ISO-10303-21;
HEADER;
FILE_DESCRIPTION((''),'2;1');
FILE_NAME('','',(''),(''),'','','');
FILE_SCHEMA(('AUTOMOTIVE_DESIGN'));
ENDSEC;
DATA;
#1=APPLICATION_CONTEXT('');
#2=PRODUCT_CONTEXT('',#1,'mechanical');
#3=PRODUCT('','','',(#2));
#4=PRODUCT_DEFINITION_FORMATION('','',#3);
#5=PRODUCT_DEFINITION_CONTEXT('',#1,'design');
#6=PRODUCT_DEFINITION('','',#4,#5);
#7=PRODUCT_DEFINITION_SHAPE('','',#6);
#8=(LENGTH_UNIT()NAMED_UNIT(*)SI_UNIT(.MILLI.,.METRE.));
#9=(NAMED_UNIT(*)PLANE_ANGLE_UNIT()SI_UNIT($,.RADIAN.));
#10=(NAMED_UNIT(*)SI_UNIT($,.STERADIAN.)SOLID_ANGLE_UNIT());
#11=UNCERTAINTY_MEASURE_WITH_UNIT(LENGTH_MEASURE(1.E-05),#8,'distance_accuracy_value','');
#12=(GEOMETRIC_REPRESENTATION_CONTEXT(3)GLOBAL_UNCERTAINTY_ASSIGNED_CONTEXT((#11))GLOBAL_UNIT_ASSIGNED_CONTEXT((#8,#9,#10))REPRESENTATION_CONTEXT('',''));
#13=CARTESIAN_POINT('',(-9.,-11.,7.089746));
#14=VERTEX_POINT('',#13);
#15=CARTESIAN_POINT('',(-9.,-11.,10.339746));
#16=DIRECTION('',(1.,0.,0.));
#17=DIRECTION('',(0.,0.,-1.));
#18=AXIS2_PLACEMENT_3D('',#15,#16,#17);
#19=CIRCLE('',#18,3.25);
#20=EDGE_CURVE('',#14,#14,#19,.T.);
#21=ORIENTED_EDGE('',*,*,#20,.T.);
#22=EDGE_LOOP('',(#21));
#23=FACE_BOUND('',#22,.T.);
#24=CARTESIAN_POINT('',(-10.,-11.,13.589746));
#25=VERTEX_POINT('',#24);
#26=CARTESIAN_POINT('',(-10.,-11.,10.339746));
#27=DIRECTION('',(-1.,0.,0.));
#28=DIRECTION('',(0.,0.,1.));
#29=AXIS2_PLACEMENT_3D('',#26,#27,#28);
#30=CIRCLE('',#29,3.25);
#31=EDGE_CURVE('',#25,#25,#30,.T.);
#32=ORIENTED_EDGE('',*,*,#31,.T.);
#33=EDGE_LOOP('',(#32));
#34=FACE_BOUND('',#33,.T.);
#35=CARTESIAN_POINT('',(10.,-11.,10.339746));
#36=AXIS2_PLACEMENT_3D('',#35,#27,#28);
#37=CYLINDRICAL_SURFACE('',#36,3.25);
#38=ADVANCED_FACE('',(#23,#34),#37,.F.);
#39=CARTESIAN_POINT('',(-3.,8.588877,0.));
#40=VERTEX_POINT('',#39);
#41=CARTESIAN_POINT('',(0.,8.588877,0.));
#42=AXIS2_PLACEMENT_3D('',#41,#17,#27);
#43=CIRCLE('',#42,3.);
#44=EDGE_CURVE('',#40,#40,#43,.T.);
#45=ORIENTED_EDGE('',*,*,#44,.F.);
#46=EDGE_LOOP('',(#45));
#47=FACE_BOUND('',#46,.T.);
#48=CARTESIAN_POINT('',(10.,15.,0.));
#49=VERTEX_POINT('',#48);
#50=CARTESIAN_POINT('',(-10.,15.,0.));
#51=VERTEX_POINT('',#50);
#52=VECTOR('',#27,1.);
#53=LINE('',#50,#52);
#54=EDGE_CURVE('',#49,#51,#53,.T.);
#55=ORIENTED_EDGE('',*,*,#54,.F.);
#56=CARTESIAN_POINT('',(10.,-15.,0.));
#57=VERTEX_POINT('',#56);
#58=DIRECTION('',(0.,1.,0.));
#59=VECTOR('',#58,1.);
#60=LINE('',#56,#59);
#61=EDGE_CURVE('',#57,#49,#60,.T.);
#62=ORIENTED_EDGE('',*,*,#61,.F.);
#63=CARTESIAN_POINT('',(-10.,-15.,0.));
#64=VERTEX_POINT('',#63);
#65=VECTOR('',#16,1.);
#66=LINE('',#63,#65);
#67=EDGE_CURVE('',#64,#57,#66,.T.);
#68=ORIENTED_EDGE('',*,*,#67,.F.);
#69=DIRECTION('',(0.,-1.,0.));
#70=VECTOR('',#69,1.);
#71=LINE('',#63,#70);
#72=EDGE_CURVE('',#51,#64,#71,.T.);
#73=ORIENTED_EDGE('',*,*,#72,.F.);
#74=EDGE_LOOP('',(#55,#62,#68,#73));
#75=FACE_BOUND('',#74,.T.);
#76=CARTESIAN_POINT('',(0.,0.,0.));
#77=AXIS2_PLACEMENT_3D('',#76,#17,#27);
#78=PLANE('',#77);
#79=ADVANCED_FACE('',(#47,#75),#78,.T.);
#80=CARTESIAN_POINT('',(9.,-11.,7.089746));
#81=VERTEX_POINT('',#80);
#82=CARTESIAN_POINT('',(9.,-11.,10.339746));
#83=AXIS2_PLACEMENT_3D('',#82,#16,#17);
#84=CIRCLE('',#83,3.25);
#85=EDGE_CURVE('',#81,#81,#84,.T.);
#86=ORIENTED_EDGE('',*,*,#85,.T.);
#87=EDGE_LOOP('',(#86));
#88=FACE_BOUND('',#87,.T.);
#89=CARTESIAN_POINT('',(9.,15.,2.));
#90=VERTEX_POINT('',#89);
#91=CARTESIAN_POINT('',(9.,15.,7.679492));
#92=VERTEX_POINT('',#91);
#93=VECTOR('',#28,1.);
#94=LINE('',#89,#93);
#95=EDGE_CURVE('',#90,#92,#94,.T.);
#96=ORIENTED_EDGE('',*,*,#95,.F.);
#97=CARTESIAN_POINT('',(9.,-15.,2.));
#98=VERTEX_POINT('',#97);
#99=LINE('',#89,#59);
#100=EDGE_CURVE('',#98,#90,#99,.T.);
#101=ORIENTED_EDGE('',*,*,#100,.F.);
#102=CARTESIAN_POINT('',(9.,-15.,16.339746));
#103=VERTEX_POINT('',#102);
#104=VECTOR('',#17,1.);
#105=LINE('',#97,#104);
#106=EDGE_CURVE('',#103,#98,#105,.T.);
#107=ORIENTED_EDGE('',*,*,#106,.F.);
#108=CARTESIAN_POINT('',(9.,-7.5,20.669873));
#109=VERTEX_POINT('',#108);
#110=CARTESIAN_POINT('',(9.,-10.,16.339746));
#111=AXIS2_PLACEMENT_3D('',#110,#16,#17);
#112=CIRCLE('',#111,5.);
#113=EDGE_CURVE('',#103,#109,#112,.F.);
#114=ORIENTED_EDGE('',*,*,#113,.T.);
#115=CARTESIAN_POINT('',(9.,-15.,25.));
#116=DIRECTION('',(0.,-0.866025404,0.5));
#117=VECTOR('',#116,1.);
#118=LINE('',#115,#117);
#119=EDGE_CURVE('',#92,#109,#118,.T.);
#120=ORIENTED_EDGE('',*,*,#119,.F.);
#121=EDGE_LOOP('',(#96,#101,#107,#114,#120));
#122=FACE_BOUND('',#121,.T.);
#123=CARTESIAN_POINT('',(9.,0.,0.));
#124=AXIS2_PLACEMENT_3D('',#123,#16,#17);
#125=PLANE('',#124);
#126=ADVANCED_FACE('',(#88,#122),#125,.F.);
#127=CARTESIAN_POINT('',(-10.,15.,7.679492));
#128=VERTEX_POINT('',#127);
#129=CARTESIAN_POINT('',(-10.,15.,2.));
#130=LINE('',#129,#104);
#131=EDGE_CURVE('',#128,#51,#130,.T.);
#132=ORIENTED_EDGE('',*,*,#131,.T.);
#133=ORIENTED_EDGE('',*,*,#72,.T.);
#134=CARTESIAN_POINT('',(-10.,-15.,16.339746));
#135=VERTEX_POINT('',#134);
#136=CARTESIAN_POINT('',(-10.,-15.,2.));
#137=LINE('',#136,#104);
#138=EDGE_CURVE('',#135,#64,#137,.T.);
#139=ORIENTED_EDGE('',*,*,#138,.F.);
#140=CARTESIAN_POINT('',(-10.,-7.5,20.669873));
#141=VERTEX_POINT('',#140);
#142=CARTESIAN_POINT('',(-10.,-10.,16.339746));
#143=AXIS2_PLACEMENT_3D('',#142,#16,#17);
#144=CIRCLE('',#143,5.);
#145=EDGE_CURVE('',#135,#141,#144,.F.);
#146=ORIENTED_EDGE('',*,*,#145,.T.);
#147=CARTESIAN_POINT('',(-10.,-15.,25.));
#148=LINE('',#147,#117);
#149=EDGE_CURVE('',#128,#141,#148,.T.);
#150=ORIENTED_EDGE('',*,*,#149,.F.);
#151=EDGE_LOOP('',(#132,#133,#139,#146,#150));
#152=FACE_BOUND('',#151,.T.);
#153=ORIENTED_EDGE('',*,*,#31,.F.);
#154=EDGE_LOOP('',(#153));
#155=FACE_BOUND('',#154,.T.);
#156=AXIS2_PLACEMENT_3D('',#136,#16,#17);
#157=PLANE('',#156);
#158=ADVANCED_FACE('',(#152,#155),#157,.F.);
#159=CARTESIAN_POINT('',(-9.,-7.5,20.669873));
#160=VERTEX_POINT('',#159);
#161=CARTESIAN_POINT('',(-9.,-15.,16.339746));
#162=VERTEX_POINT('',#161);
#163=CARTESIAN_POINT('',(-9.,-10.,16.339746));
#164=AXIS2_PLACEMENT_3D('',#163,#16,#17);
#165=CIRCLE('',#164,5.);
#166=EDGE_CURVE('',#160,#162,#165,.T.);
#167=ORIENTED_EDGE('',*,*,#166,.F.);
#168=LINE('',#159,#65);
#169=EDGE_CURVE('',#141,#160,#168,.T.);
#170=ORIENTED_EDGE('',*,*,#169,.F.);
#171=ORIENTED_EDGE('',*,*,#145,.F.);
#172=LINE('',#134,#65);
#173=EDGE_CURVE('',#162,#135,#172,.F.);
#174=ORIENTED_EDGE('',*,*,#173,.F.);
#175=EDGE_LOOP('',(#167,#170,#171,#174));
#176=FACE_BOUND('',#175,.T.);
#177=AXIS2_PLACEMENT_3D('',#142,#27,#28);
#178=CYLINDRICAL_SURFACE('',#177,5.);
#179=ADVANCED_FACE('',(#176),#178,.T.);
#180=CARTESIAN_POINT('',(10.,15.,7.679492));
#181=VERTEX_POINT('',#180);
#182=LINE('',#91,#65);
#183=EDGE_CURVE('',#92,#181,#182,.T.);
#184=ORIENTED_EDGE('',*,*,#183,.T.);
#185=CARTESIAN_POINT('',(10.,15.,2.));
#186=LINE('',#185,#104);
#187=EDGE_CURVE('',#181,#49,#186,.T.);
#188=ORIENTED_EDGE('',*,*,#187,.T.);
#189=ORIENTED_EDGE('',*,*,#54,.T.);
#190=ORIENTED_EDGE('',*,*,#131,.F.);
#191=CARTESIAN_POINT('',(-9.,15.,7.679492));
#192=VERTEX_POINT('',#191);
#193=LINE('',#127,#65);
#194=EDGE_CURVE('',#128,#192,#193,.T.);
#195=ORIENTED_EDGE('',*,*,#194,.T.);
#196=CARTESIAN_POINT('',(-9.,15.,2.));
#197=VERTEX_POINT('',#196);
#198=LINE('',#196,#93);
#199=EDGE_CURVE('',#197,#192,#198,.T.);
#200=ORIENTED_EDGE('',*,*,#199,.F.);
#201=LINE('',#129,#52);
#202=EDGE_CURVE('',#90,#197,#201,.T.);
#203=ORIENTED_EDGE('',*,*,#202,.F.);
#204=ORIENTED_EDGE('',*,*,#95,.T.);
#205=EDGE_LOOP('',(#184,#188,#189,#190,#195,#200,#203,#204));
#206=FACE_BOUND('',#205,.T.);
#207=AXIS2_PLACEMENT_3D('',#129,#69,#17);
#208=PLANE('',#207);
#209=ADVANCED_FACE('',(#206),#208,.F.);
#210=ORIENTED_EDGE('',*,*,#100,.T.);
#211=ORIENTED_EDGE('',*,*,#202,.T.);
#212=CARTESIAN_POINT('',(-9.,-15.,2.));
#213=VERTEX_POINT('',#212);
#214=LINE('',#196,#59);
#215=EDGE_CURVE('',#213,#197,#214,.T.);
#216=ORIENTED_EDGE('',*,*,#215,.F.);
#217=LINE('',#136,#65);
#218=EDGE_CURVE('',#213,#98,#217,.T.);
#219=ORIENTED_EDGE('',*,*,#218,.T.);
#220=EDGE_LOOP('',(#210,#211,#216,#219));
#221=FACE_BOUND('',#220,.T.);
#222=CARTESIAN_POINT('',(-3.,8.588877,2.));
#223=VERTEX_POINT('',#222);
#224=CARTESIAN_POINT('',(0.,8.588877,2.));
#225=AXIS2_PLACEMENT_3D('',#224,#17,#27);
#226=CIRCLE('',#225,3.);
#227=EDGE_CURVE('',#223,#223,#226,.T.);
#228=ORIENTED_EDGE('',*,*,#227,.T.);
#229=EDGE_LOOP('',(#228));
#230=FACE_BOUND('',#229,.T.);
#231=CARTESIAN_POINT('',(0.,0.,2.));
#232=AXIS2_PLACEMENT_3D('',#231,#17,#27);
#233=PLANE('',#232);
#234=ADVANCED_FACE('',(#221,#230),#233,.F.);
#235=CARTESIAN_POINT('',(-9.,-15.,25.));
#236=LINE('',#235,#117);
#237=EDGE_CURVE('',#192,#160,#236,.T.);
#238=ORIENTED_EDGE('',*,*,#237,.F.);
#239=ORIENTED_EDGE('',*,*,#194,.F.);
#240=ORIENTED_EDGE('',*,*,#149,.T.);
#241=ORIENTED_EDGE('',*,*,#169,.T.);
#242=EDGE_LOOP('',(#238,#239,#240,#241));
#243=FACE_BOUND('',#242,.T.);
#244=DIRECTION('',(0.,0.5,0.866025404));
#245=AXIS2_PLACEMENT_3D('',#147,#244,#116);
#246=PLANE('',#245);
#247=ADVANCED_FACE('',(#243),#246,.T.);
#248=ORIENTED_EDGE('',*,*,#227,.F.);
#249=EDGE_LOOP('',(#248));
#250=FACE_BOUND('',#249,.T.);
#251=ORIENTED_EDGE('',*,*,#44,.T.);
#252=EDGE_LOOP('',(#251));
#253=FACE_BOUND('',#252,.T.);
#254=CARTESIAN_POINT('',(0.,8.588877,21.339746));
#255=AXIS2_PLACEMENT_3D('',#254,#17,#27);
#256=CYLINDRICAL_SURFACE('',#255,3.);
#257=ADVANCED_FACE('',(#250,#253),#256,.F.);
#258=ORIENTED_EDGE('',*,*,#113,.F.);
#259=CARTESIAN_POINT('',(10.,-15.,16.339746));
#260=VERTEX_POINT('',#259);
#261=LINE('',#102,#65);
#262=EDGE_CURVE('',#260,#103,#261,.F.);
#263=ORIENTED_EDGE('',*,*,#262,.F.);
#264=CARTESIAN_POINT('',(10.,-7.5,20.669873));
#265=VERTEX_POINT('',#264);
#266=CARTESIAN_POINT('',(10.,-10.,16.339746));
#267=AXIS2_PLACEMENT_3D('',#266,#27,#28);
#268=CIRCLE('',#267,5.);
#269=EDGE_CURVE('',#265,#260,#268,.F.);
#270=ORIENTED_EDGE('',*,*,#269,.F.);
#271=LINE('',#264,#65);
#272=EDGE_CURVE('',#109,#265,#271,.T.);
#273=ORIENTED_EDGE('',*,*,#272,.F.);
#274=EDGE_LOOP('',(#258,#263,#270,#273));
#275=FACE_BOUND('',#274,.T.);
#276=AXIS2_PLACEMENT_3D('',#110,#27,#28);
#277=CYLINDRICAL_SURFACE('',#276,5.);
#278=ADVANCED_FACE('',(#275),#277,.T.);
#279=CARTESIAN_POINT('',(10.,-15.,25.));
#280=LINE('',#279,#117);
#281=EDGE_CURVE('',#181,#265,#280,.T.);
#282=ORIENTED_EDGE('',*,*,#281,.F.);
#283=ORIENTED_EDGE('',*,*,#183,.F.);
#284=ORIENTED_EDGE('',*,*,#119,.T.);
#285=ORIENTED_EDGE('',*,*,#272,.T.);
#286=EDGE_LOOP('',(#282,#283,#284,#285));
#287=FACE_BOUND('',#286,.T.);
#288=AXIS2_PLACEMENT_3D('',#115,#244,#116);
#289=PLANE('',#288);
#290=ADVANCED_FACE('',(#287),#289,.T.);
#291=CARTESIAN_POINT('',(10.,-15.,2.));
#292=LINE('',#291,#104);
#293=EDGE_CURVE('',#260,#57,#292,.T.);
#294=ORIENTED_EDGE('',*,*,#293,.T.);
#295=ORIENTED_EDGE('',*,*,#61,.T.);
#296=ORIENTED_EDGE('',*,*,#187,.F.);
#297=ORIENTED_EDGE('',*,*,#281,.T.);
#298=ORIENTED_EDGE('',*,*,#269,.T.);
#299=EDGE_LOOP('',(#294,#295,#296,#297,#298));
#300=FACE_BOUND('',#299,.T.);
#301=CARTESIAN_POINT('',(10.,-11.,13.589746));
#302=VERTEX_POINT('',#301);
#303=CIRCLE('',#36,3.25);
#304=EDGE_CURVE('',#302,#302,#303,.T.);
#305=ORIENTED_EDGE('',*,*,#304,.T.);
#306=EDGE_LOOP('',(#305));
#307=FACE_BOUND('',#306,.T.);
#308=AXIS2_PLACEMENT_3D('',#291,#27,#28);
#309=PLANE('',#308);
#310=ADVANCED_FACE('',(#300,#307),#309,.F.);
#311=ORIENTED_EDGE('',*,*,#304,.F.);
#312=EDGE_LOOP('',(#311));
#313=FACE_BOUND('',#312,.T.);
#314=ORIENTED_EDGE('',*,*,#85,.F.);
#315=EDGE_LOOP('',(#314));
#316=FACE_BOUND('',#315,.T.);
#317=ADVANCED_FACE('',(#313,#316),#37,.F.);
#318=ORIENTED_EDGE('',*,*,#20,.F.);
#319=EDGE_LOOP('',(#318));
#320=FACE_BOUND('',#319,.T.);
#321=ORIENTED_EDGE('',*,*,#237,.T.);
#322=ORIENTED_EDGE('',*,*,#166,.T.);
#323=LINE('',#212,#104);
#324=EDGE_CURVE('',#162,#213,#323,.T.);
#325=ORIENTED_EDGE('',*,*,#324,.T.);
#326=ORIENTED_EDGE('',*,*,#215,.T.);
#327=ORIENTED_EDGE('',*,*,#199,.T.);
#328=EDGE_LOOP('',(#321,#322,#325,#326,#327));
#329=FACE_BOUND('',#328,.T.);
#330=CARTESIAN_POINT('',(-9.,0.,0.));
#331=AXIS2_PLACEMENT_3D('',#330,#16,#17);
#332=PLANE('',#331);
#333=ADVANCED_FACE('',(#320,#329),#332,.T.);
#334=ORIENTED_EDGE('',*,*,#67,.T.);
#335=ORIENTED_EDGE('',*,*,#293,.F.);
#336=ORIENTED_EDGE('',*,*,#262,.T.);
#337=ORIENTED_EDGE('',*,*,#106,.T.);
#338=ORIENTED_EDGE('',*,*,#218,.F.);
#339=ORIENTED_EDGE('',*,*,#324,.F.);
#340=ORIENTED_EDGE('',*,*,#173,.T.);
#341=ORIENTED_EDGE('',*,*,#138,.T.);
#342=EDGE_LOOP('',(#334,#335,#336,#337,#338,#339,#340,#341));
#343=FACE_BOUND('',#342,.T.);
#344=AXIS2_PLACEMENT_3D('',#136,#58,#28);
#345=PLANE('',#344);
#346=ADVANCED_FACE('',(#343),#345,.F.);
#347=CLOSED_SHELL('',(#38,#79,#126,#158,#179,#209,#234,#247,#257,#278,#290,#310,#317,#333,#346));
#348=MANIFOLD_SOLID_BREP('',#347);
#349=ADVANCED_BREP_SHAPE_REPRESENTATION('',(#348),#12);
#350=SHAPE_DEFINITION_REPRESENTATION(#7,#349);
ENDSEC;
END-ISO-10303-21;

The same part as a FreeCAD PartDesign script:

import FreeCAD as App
import Part
import Sketcher

V = App.Vector
Q = App.Units.Quantity


def edges_at(feature, points):
    """Names of the edges that pass closest to the given points."""
    edges = feature.Shape.Edges
    near = lambda p: min(range(len(edges)), key=lambda i: edges[i].distToShape(Part.Vertex(*p))[0])
    return sorted({f"Edge{near(p) + 1}" for p in points})

doc = App.newDocument("Part")
body = doc.addObject("PartDesign::Body", "Body")

# Sketch on XY plane
sketch1 = body.newObject("Sketcher::SketchObject", "Sketch")
sketch1.AttachmentSupport = (doc.getObject("XY_Plane"), [""])
sketch1.MapMode = "FlatFace"
sketch1.addGeometry([
    Part.LineSegment(V(-10, 15, 0), V(-10, -15, 0)),
    Part.LineSegment(V(-10, -15, 0), V(10, -15, 0)),
    Part.LineSegment(V(10, -15, 0), V(10, 15, 0)),
    Part.LineSegment(V(10, 15, 0), V(-10, 15, 0)),
], False)
sketch1.addConstraint([
    Sketcher.Constraint("Coincident", 0, 2, 1, 1),
    Sketcher.Constraint("Coincident", 1, 2, 2, 1),
    Sketcher.Constraint("Coincident", 2, 2, 3, 1),
    Sketcher.Constraint("Coincident", 3, 2, 0, 1),
    Sketcher.Constraint("Vertical", 0),
    Sketcher.Constraint("Horizontal", 1),
    Sketcher.Constraint("Vertical", 2),
    Sketcher.Constraint("Horizontal", 3),
    Sketcher.Constraint("Symmetric", 0, 2, 2, 2, -1, 1),
    Sketcher.Constraint("DistanceX", 1, 1, 1, 2, Q("20 mm")),
    Sketcher.Constraint("DistanceY", 0, 2, 0, 1, Q("30 mm")),
])
pad1 = body.newObject("PartDesign::Pad", "Pad")
pad1.Profile = sketch1
pad1.Length = 2

# Sketch on YZ plane
sketch2 = body.newObject("Sketcher::SketchObject", "Sketch001")
sketch2.AttachmentSupport = (doc.getObject("YZ_Plane"), [""])
sketch2.MapMode = "FlatFace"
sketch2.AttachmentOffset = App.Placement(V(0, 0, 10), App.Rotation())
sketch2.addGeometry([
    Part.LineSegment(V(15, 2, 0), V(15, 8, 0)),
    Part.LineSegment(V(15, 8, 0), V(-15, 25, 0)),
    Part.LineSegment(V(-15, 25, 0), V(-15, 2, 0)),
    Part.LineSegment(V(-15, 2, 0), V(15, 2, 0)),
], False)
sketch2.addConstraint([
    Sketcher.Constraint("Coincident", 0, 2, 1, 1),
    Sketcher.Constraint("Coincident", 1, 2, 2, 1),
    Sketcher.Constraint("Coincident", 2, 2, 3, 1),
    Sketcher.Constraint("Coincident", 3, 2, 0, 1),
    Sketcher.Constraint("Vertical", 0),
    Sketcher.Constraint("Vertical", 2),
    Sketcher.Constraint("Horizontal", 3),
    Sketcher.Constraint("DistanceX", 3, 1, 3, 2, Q("30 mm")),
    Sketcher.Constraint("DistanceY", 2, 2, 2, 1, Q("23 mm")),
    Sketcher.Constraint("Angle", 1, Q("150 deg")),
    Sketcher.Constraint("DistanceX", -1, 1, 0, 2, Q("15 mm")),
    Sketcher.Constraint("DistanceY", -1, 1, 1, 2, Q("25 mm")),
])
pad2 = body.newObject("PartDesign::Pad", "Pad001")
pad2.Profile = sketch2
pad2.Length = 1
pad2.Reversed = True
doc.recompute()

linearpattern = body.newObject("PartDesign::LinearPattern", "LinearPattern")
linearpattern.Originals = [pad2]
linearpattern.Direction = (doc.getObject("X_Axis"), [""])
linearpattern.Mode = "offset"
linearpattern.Offset = 19
linearpattern.Occurrences = 2
linearpattern.Reversed = True
body.Tip = linearpattern
doc.recompute()

fillet = body.newObject("PartDesign::Fillet", "Fillet")
fillet.Base = (linearpattern, edges_at(linearpattern, [(-9.5, -15, 25)]))
fillet.Radius = 5
doc.recompute()

fillet2 = body.newObject("PartDesign::Fillet", "Fillet001")
fillet2.Base = (fillet, edges_at(fillet, [(9.5, -15, 25)]))
fillet2.Radius = 5

# Sketch on YZ plane
sketch3 = body.newObject("Sketcher::SketchObject", "Sketch002")
sketch3.AttachmentSupport = (doc.getObject("YZ_Plane"), [""])
sketch3.MapMode = "FlatFace"
sketch3.AttachmentOffset = App.Placement(V(0, 0, -10), App.Rotation())
sketch3.addGeometry(Part.Circle(V(-11, 10.3, 0), V(0, 0, 1), 3.2), False)
sketch3.addConstraint([
    Sketcher.Constraint("Diameter", 0, Q("6.5 mm")),
    Sketcher.Constraint("DistanceX", 0, 3, -1, 1, Q("11 mm")),
    Sketcher.Constraint("DistanceY", -1, 1, 0, 3, Q("10.339746 mm")),
])
pocket1 = body.newObject("PartDesign::Pocket", "Pocket")
pocket1.Profile = sketch3
pocket1.Type = "ThroughAll"
pocket1.Reversed = True

# Sketch on XY plane
sketch4 = body.newObject("Sketcher::SketchObject", "Sketch003")
sketch4.AttachmentSupport = (doc.getObject("XY_Plane"), [""])
sketch4.MapMode = "FlatFace"
sketch4.addGeometry(Part.Circle(V(0, 8.6, 0), V(0, 0, 1), 3), False)
sketch4.addConstraint([
    Sketcher.Constraint("PointOnObject", 0, 3, -2),
    Sketcher.Constraint("Diameter", 0, Q("6 mm")),
    Sketcher.Constraint("DistanceY", -1, 1, 0, 3, Q("8.588877 mm")),
])
pocket2 = body.newObject("PartDesign::Pocket", "Pocket001")
pocket2.Profile = sketch4
pocket2.Type = "ThroughAll"
pocket2.Reversed = True

doc.recompute()
